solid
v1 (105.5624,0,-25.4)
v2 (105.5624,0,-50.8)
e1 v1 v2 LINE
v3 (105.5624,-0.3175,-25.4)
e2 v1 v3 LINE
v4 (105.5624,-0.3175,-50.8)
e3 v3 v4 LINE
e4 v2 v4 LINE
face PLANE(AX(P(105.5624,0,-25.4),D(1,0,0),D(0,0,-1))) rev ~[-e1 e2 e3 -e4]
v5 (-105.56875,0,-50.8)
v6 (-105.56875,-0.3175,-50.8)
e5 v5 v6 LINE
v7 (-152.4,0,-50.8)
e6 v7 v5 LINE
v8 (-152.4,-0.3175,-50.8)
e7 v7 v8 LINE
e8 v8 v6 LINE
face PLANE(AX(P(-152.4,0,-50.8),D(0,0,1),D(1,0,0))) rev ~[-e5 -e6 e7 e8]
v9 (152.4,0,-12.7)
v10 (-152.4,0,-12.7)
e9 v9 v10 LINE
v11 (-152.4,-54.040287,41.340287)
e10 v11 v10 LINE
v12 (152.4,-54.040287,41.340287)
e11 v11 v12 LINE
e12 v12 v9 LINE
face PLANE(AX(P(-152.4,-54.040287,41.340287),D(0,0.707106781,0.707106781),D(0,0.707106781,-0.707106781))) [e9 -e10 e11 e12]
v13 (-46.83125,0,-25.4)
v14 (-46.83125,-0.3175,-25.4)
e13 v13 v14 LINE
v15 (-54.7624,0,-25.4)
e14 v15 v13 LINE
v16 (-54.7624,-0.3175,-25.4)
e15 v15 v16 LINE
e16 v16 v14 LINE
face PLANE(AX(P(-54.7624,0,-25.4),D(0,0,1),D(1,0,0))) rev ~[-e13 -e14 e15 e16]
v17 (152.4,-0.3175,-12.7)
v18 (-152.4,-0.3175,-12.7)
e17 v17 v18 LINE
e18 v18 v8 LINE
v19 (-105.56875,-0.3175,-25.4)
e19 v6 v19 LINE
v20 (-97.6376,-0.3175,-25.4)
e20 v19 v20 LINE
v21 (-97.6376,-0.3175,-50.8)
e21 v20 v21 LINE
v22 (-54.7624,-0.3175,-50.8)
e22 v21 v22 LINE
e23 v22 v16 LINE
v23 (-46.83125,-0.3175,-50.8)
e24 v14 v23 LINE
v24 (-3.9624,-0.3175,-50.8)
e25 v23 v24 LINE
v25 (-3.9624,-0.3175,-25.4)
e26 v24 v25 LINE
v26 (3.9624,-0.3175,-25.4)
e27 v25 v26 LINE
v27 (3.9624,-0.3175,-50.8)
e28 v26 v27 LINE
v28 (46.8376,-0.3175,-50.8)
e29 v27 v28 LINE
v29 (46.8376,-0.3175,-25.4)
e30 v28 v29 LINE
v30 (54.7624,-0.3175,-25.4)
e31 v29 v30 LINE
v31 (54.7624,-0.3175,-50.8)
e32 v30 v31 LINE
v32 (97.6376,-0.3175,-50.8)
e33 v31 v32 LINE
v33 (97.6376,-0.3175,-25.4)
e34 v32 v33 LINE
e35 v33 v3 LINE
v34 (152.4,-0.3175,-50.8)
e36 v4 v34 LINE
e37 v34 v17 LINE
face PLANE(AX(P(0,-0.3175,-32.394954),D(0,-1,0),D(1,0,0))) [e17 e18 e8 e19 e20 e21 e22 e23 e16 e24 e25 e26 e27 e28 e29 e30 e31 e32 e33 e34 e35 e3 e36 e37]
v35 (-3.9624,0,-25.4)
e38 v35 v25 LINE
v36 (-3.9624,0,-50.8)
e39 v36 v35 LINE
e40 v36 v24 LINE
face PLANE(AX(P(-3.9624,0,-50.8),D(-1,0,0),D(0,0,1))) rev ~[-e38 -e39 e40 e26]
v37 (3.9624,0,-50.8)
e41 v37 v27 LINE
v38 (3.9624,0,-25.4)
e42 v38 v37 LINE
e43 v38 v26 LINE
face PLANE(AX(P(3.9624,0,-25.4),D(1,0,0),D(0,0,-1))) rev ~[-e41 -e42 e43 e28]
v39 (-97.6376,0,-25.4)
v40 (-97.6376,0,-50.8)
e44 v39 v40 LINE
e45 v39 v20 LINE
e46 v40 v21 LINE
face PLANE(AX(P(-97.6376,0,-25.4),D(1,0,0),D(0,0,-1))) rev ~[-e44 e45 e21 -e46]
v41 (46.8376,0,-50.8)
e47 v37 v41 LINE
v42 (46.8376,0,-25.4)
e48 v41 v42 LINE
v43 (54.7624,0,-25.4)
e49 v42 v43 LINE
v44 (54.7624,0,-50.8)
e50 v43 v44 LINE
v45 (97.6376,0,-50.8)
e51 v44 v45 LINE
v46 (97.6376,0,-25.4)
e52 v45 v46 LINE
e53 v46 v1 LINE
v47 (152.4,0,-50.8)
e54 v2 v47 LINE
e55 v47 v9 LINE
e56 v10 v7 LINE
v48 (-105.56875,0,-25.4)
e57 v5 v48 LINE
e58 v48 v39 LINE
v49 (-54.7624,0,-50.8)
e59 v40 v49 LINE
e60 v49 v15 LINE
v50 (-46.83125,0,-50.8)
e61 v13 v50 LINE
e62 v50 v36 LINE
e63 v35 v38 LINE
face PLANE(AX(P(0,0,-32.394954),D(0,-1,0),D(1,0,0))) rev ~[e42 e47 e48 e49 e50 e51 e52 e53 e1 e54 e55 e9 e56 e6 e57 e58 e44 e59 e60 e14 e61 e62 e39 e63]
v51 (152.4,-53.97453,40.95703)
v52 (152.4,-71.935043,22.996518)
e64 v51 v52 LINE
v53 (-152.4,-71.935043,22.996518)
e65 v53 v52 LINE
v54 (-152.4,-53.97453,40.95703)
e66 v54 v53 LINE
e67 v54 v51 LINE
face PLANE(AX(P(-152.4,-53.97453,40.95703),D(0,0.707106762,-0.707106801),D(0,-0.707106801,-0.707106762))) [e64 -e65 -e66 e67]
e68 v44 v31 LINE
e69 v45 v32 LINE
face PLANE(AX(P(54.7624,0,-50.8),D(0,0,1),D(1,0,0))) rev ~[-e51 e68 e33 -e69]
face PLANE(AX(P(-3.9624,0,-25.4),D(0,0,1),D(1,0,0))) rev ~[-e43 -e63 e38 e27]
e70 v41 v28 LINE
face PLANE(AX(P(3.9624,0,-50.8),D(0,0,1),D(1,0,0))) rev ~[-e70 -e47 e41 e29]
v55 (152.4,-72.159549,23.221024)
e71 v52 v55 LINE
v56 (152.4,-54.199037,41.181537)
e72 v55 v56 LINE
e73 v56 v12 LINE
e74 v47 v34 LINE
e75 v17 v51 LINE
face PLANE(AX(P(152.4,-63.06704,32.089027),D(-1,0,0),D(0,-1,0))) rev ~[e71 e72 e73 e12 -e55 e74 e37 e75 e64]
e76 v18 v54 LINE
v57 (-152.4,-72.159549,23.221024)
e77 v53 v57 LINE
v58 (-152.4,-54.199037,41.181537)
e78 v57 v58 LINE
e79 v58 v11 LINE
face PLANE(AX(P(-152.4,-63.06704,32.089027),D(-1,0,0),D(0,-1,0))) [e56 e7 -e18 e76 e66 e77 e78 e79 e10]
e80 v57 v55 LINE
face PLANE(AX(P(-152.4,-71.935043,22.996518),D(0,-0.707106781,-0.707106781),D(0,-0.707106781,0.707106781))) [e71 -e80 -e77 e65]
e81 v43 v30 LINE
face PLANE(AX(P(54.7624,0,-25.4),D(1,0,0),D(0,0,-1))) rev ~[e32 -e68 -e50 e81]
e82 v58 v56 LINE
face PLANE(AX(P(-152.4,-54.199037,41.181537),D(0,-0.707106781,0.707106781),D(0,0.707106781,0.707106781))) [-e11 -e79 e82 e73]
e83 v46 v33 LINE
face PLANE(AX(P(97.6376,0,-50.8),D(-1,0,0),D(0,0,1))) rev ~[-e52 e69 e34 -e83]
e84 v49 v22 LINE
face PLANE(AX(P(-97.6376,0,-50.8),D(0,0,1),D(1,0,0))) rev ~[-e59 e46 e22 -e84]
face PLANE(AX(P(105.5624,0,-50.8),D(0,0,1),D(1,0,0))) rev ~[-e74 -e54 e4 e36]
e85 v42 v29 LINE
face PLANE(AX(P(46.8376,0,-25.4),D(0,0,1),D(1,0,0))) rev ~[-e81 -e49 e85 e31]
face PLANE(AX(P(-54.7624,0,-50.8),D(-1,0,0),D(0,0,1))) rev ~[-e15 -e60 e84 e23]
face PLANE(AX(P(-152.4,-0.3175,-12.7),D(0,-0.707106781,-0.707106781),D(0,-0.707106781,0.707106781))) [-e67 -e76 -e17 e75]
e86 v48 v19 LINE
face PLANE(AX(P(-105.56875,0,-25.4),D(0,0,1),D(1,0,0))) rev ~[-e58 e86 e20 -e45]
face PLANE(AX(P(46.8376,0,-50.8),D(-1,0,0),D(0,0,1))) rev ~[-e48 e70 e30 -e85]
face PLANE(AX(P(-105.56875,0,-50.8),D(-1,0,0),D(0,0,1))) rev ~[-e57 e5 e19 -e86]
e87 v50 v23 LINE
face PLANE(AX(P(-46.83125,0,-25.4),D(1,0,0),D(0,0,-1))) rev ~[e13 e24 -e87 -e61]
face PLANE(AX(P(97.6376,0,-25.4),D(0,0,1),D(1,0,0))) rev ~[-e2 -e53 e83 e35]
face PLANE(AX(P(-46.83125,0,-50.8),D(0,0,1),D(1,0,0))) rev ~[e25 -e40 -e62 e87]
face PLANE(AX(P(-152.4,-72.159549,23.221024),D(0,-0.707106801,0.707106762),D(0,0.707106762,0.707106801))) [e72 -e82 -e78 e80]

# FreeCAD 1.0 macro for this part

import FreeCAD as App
import Part
import Sketcher
Q = App.Units.Quantity


def add_polygon(sketch, points):
    """Adds a closed chain of lines whose ends are joined by coincident constraints."""
    first, n = sketch.GeometryCount, len(points)
    for a, b in zip(points, points[1:] + points[:1]):
        sketch.addGeometry(Part.LineSegment(App.Vector(*a, 0), App.Vector(*b, 0)), False)
    for i in range(n):
        sketch.addConstraint(Sketcher.Constraint("Coincident", first + i, 2, first + (i + 1) % n, 1))

doc = App.newDocument("Part")
body = doc.addObject("PartDesign::Body", "Body")

# Sketch on XZ plane
sketch1 = doc.addObject("Sketcher::SketchObject", "Sketch")
body.addObject(sketch1)
sketch1.AttachmentSupport = (doc.XZ_Plane, [""])
sketch1.MapMode = "FlatFace"
add_polygon(sketch1, [(105.5624, -50.8), (152.4, -50.8), (152.4, -12.7), (-152.4, -12.7), (-152.4, -50.8), (-105.56875, -50.8), (-105.56875, -25.4), (-97.6376, -25.4), (-97.6376, -50.8), (-54.7624, -50.8), (-54.7624, -25.4), (-46.83125, -25.4), (-46.83125, -50.8), (-3.9624, -50.8), (-3.9624, -25.4), (3.9624, -25.4), (3.9624, -50.8), (46.8376, -50.8), (46.8376, -25.4), (54.7624, -25.4), (54.7624, -50.8), (97.6376, -50.8), (97.6376, -25.4), (105.5624, -25.4)])  # lines 0-23
sketch1.addConstraint(Sketcher.Constraint("Horizontal", 0))
sketch1.addConstraint(Sketcher.Constraint("Vertical", 1))
sketch1.addConstraint(Sketcher.Constraint("Horizontal", 2))
sketch1.addConstraint(Sketcher.Constraint("Vertical", 3))
sketch1.addConstraint(Sketcher.Constraint("Horizontal", 4))
sketch1.addConstraint(Sketcher.Constraint("Vertical", 5))
sketch1.addConstraint(Sketcher.Constraint("Horizontal", 6))
sketch1.addConstraint(Sketcher.Constraint("Vertical", 7))
sketch1.addConstraint(Sketcher.Constraint("Horizontal", 8))
sketch1.addConstraint(Sketcher.Constraint("Vertical", 9))
sketch1.addConstraint(Sketcher.Constraint("Horizontal", 10))
sketch1.addConstraint(Sketcher.Constraint("Vertical", 11))
sketch1.addConstraint(Sketcher.Constraint("Horizontal", 12))
sketch1.addConstraint(Sketcher.Constraint("Vertical", 13))
sketch1.addConstraint(Sketcher.Constraint("Horizontal", 14))
sketch1.addConstraint(Sketcher.Constraint("Vertical", 15))
sketch1.addConstraint(Sketcher.Constraint("Horizontal", 16))
sketch1.addConstraint(Sketcher.Constraint("Vertical", 17))
sketch1.addConstraint(Sketcher.Constraint("Horizontal", 18))
sketch1.addConstraint(Sketcher.Constraint("Vertical", 19))
sketch1.addConstraint(Sketcher.Constraint("Horizontal", 20))
sketch1.addConstraint(Sketcher.Constraint("Vertical", 21))
sketch1.addConstraint(Sketcher.Constraint("Horizontal", 22))
sketch1.addConstraint(Sketcher.Constraint("Vertical", 23))
sketch1.addConstraint(Sketcher.Constraint("Symmetric", 0, 2, 3, 2, -2))
sketch1.addConstraint(Sketcher.Constraint("Symmetric", 12, 2, 15, 2, -2))
sketch1.addConstraint(Sketcher.Constraint("Symmetric", 9, 2, 18, 2, -2))
sketch1.addConstraint(Sketcher.Constraint("Symmetric", 7, 2, 20, 2, -2))
sketch1.addConstraint(Sketcher.Constraint("Horizontal", 4, 2, 7, 2))
sketch1.addConstraint(Sketcher.Constraint("Horizontal", 6, 2, 9, 2))
sketch1.addConstraint(Sketcher.Constraint("Horizontal", 8, 2, 11, 2))
sketch1.addConstraint(Sketcher.Constraint("Horizontal", 10, 2, 13, 2))
sketch1.addConstraint(Sketcher.Constraint("Horizontal", 18, 2, 21, 2))
sketch1.addConstraint(Sketcher.Constraint("Equal", 6, 10))
sketch1.addConstraint(Sketcher.Constraint("Equal", 8, 16))
sketch1.addConstraint(Sketcher.Constraint("Equal", 14, 18))
sketch1.addConstraint(Sketcher.Constraint("Equal", 18, 22))
sketch1.addConstraint(Sketcher.Constraint("DistanceX", 2, 2, 2, 1, Q("12 in")))
sketch1.addConstraint(Sketcher.Constraint("DistanceY", 5, 1, 5, 2, Q("1 in")))
sketch1.addConstraint(Sketcher.Constraint("DistanceY", 1, 1, 1, 2, Q("1.5 in")))
sketch1.addConstraint(Sketcher.Constraint("DistanceY", 0, 2, -1, 1, Q("2 in")))
sketch1.addConstraint(Sketcher.Constraint("DistanceX", 8, 2, 12, 2, Q("2 in")))
sketch1.addConstraint(Sketcher.Constraint("DistanceX", 0, 1, 0, 2, Q("1.844 in")))
sketch1.addConstraint(Sketcher.Constraint("DistanceX", 4, 1, 4, 2, Q("1.84375 in")))
pad1 = doc.addObject("PartDesign::Pad", "Pad")
body.addObject(pad1)
pad1.Profile = sketch1
pad1.Length = Q("0.0125 in")

# Sketch on YZ plane
sketch2 = doc.addObject("Sketcher::SketchObject", "Sketch001")
body.addObject(sketch2)
sketch2.AttachmentSupport = (doc.YZ_Plane, [""])
sketch2.MapMode = "FlatFace"
sketch2.AttachmentOffset = App.Placement(App.Vector(0, 0, -6 * 25.4), App.Rotation())
add_polygon(sketch2, [(0, -12.7), (-0.3175, -12.7), (-54.199037, 41.181537), (-54.040287, 41.340287)])  # lines 0-3
sketch2.addConstraint(Sketcher.Constraint("Horizontal", 0))
sketch2.addConstraint(Sketcher.Constraint("PointOnObject", 3, 2, -2))
sketch2.addConstraint(Sketcher.Constraint("Perpendicular", 1, 2))
sketch2.addConstraint(Sketcher.Constraint("Perpendicular", 2, 3))
sketch2.addConstraint(Sketcher.Constraint("Distance", 1, Q("3 in")))
sketch2.addConstraint(Sketcher.Constraint("Angle", 1, Q("135 deg")))
sketch2.addConstraint(Sketcher.Constraint("DistanceY", 0, 2, -1, 1, Q("0.5 in")))
sketch2.addConstraint(Sketcher.Constraint("DistanceX", 0, 2, 0, 1, Q("0.0125 in")))
pad2 = doc.addObject("PartDesign::Pad", "Pad001")
body.addObject(pad2)
pad2.Profile = sketch2
pad2.Length = Q("12 in")

# Sketch on YZ plane
sketch3 = doc.addObject("Sketcher::SketchObject", "Sketch002")
body.addObject(sketch3)
sketch3.AttachmentSupport = (doc.YZ_Plane, [""])
sketch3.MapMode = "FlatFace"
sketch3.AttachmentOffset = App.Placement(App.Vector(0, 0, -6 * 25.4), App.Rotation())
add_polygon(sketch3, [(-72.159549, 23.221024), (-54.199037, 41.181537), (-53.97453, 40.95703), (-71.935043, 22.996518)])  # lines 0-3
sketch3.addConstraint(Sketcher.Constraint("Perpendicular", 0, 1))
sketch3.addConstraint(Sketcher.Constraint("Perpendicular", 1, 2))
sketch3.addConstraint(Sketcher.Constraint("Perpendicular", 2, 3))
sketch3.addConstraint(Sketcher.Constraint("Distance", 0, Q("1 in")))
sketch3.addConstraint(Sketcher.Constraint("Angle", 0, Q("45.000002 deg")))
sketch3.addConstraint(Sketcher.Constraint("Distance", 1, Q("0.0125 in")))
sketch3.addConstraint(Sketcher.Constraint("DistanceX", 1, 2, -1, 1, 53.97453))
sketch3.addConstraint(Sketcher.Constraint("DistanceY", -1, 1, 1, 2, 40.95703))
pad3 = doc.addObject("PartDesign::Pad", "Pad002")
body.addObject(pad3)
pad3.Profile = sketch3
pad3.Length = Q("12 in")

doc.recompute()
